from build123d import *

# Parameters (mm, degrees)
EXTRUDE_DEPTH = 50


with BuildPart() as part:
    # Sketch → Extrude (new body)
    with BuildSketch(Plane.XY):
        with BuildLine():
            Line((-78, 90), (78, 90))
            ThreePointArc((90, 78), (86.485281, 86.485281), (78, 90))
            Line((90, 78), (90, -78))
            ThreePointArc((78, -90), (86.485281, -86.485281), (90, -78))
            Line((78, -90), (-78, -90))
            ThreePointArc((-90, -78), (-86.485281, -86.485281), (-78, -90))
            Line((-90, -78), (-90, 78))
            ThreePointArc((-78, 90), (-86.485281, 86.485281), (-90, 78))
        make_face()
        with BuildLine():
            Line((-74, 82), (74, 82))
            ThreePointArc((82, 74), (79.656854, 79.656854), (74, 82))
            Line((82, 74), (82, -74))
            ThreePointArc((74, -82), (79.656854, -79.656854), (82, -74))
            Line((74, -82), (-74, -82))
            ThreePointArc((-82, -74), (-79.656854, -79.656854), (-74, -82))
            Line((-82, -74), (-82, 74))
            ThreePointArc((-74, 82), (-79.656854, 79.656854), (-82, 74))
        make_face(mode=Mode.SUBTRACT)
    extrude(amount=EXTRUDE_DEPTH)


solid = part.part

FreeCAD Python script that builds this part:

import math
import FreeCAD as App
import Part
import Sketcher
from FreeCAD import Vector
Q = App.Units.Quantity

doc = App.newDocument("Part")
body = doc.addObject("PartDesign::Body", "Body")

sketch1 = body.newObject("Sketcher::SketchObject", "Sketch")
sketch1.AttachmentSupport = (doc.getObject("XY_Plane"), [""])
sketch1.MapMode = "FlatFace"
sketch1.addGeometry(Part.LineSegment(Vector(78, 90, 0), Vector(-78, 90, 0)), False)
sketch1.addGeometry(Part.ArcOfCircle(Part.Circle(Vector(-78, 78, 0), Vector(0, 0, 1), 12), math.radians(90), math.radians(180)), False)
sketch1.addGeometry(Part.LineSegment(Vector(-90, 78, 0), Vector(-90, -78, 0)), False)
sketch1.addGeometry(Part.ArcOfCircle(Part.Circle(Vector(-78, -78, 0), Vector(0, 0, 1), 12), math.radians(-180), math.radians(-90)), False)
sketch1.addGeometry(Part.LineSegment(Vector(-78, -90, 0), Vector(78, -90, 0)), False)
sketch1.addGeometry(Part.ArcOfCircle(Part.Circle(Vector(78, -78, 0), Vector(0, 0, 1), 12), math.radians(-90), math.radians(0)), False)
sketch1.addGeometry(Part.LineSegment(Vector(90, -78, 0), Vector(90, 78, 0)), False)
sketch1.addGeometry(Part.ArcOfCircle(Part.Circle(Vector(78, 78, 0), Vector(0, 0, 1), 12), math.radians(0), math.radians(90)), False)
sketch1.addGeometry(Part.LineSegment(Vector(-74, 82, 0), Vector(74, 82, 0)), False)
sketch1.addGeometry(Part.ArcOfCircle(Part.Circle(Vector(74, 74, 0), Vector(0, 0, 1), 8), math.radians(0), math.radians(90)), False)
sketch1.addGeometry(Part.LineSegment(Vector(82, 74, 0), Vector(82, -74, 0)), False)
sketch1.addGeometry(Part.ArcOfCircle(Part.Circle(Vector(74, -74, 0), Vector(0, 0, 1), 8), math.radians(-90), math.radians(0)), False)
sketch1.addGeometry(Part.LineSegment(Vector(74, -82, 0), Vector(-74, -82, 0)), False)
sketch1.addGeometry(Part.ArcOfCircle(Part.Circle(Vector(-74, -74, 0), Vector(0, 0, 1), 8), math.radians(-180), math.radians(-90)), False)
sketch1.addGeometry(Part.LineSegment(Vector(-82, -74, 0), Vector(-82, 74, 0)), False)
sketch1.addGeometry(Part.ArcOfCircle(Part.Circle(Vector(-74, 74, 0), Vector(0, 0, 1), 8), math.radians(90), math.radians(180)), False)
sketch1.addConstraint(Sketcher.Constraint("Tangent", 0, 2, 1, 1))
sketch1.addConstraint(Sketcher.Constraint("Tangent", 1, 2, 2, 1))
sketch1.addConstraint(Sketcher.Constraint("Tangent", 2, 2, 3, 1))
sketch1.addConstraint(Sketcher.Constraint("Tangent", 3, 2, 4, 1))
sketch1.addConstraint(Sketcher.Constraint("Tangent", 4, 2, 5, 1))
sketch1.addConstraint(Sketcher.Constraint("Tangent", 5, 2, 6, 1))
sketch1.addConstraint(Sketcher.Constraint("Tangent", 6, 2, 7, 1))
sketch1.addConstraint(Sketcher.Constraint("Tangent", 7, 2, 0, 1))
sketch1.addConstraint(Sketcher.Constraint("Tangent", 8, 2, 9, 2))
sketch1.addConstraint(Sketcher.Constraint("Tangent", 9, 1, 10, 1))
sketch1.addConstraint(Sketcher.Constraint("Tangent", 10, 2, 11, 2))
sketch1.addConstraint(Sketcher.Constraint("Tangent", 11, 1, 12, 1))
sketch1.addConstraint(Sketcher.Constraint("Tangent", 12, 2, 13, 2))
sketch1.addConstraint(Sketcher.Constraint("Tangent", 13, 1, 14, 1))
sketch1.addConstraint(Sketcher.Constraint("Tangent", 14, 2, 15, 2))
sketch1.addConstraint(Sketcher.Constraint("Tangent", 15, 1, 8, 1))
sketch1.addConstraint(Sketcher.Constraint("Horizontal", 0))
sketch1.addConstraint(Sketcher.Constraint("Vertical", 2))
sketch1.addConstraint(Sketcher.Constraint("Horizontal", 4))
sketch1.addConstraint(Sketcher.Constraint("Vertical", 6))
sketch1.addConstraint(Sketcher.Constraint("Horizontal", 8))
sketch1.addConstraint(Sketcher.Constraint("Vertical", 10))
sketch1.addConstraint(Sketcher.Constraint("Horizontal", 12))
sketch1.addConstraint(Sketcher.Constraint("Vertical", 14))
sketch1.addConstraint(Sketcher.Constraint("Equal", 1, 3))
sketch1.addConstraint(Sketcher.Constraint("Equal", 3, 5))
sketch1.addConstraint(Sketcher.Constraint("Equal", 5, 7))
sketch1.addConstraint(Sketcher.Constraint("Equal", 9, 11))
sketch1.addConstraint(Sketcher.Constraint("Equal", 11, 13))
sketch1.addConstraint(Sketcher.Constraint("Equal", 13, 15))
sketch1.addConstraint(Sketcher.Constraint("Symmetric", 1, 3, 5, 3, -1, 1))
sketch1.addConstraint(Sketcher.Constraint("Symmetric", 9, 3, 13, 3, -1, 1))
sketch1.addConstraint(Sketcher.Constraint("Equal", 4, 2))
sketch1.addConstraint(Sketcher.Constraint("Equal", 12, 10))
sketch1.addConstraint(Sketcher.Constraint("Radius", 1, Q("12.000001 mm")))
sketch1.addConstraint(Sketcher.Constraint("Radius", 9, Q("8.000001 mm")))
sketch1.addConstraint(Sketcher.Constraint("DistanceX", 0, 2, 0, 1, Q("156 mm")))
sketch1.addConstraint(Sketcher.Constraint("DistanceX", 8, 1, 8, 2, Q("148 mm")))
pad1 = body.newObject("PartDesign::Pad", "Pad")
pad1.Profile = sketch1
pad1.Length = 50

doc.recompute()
